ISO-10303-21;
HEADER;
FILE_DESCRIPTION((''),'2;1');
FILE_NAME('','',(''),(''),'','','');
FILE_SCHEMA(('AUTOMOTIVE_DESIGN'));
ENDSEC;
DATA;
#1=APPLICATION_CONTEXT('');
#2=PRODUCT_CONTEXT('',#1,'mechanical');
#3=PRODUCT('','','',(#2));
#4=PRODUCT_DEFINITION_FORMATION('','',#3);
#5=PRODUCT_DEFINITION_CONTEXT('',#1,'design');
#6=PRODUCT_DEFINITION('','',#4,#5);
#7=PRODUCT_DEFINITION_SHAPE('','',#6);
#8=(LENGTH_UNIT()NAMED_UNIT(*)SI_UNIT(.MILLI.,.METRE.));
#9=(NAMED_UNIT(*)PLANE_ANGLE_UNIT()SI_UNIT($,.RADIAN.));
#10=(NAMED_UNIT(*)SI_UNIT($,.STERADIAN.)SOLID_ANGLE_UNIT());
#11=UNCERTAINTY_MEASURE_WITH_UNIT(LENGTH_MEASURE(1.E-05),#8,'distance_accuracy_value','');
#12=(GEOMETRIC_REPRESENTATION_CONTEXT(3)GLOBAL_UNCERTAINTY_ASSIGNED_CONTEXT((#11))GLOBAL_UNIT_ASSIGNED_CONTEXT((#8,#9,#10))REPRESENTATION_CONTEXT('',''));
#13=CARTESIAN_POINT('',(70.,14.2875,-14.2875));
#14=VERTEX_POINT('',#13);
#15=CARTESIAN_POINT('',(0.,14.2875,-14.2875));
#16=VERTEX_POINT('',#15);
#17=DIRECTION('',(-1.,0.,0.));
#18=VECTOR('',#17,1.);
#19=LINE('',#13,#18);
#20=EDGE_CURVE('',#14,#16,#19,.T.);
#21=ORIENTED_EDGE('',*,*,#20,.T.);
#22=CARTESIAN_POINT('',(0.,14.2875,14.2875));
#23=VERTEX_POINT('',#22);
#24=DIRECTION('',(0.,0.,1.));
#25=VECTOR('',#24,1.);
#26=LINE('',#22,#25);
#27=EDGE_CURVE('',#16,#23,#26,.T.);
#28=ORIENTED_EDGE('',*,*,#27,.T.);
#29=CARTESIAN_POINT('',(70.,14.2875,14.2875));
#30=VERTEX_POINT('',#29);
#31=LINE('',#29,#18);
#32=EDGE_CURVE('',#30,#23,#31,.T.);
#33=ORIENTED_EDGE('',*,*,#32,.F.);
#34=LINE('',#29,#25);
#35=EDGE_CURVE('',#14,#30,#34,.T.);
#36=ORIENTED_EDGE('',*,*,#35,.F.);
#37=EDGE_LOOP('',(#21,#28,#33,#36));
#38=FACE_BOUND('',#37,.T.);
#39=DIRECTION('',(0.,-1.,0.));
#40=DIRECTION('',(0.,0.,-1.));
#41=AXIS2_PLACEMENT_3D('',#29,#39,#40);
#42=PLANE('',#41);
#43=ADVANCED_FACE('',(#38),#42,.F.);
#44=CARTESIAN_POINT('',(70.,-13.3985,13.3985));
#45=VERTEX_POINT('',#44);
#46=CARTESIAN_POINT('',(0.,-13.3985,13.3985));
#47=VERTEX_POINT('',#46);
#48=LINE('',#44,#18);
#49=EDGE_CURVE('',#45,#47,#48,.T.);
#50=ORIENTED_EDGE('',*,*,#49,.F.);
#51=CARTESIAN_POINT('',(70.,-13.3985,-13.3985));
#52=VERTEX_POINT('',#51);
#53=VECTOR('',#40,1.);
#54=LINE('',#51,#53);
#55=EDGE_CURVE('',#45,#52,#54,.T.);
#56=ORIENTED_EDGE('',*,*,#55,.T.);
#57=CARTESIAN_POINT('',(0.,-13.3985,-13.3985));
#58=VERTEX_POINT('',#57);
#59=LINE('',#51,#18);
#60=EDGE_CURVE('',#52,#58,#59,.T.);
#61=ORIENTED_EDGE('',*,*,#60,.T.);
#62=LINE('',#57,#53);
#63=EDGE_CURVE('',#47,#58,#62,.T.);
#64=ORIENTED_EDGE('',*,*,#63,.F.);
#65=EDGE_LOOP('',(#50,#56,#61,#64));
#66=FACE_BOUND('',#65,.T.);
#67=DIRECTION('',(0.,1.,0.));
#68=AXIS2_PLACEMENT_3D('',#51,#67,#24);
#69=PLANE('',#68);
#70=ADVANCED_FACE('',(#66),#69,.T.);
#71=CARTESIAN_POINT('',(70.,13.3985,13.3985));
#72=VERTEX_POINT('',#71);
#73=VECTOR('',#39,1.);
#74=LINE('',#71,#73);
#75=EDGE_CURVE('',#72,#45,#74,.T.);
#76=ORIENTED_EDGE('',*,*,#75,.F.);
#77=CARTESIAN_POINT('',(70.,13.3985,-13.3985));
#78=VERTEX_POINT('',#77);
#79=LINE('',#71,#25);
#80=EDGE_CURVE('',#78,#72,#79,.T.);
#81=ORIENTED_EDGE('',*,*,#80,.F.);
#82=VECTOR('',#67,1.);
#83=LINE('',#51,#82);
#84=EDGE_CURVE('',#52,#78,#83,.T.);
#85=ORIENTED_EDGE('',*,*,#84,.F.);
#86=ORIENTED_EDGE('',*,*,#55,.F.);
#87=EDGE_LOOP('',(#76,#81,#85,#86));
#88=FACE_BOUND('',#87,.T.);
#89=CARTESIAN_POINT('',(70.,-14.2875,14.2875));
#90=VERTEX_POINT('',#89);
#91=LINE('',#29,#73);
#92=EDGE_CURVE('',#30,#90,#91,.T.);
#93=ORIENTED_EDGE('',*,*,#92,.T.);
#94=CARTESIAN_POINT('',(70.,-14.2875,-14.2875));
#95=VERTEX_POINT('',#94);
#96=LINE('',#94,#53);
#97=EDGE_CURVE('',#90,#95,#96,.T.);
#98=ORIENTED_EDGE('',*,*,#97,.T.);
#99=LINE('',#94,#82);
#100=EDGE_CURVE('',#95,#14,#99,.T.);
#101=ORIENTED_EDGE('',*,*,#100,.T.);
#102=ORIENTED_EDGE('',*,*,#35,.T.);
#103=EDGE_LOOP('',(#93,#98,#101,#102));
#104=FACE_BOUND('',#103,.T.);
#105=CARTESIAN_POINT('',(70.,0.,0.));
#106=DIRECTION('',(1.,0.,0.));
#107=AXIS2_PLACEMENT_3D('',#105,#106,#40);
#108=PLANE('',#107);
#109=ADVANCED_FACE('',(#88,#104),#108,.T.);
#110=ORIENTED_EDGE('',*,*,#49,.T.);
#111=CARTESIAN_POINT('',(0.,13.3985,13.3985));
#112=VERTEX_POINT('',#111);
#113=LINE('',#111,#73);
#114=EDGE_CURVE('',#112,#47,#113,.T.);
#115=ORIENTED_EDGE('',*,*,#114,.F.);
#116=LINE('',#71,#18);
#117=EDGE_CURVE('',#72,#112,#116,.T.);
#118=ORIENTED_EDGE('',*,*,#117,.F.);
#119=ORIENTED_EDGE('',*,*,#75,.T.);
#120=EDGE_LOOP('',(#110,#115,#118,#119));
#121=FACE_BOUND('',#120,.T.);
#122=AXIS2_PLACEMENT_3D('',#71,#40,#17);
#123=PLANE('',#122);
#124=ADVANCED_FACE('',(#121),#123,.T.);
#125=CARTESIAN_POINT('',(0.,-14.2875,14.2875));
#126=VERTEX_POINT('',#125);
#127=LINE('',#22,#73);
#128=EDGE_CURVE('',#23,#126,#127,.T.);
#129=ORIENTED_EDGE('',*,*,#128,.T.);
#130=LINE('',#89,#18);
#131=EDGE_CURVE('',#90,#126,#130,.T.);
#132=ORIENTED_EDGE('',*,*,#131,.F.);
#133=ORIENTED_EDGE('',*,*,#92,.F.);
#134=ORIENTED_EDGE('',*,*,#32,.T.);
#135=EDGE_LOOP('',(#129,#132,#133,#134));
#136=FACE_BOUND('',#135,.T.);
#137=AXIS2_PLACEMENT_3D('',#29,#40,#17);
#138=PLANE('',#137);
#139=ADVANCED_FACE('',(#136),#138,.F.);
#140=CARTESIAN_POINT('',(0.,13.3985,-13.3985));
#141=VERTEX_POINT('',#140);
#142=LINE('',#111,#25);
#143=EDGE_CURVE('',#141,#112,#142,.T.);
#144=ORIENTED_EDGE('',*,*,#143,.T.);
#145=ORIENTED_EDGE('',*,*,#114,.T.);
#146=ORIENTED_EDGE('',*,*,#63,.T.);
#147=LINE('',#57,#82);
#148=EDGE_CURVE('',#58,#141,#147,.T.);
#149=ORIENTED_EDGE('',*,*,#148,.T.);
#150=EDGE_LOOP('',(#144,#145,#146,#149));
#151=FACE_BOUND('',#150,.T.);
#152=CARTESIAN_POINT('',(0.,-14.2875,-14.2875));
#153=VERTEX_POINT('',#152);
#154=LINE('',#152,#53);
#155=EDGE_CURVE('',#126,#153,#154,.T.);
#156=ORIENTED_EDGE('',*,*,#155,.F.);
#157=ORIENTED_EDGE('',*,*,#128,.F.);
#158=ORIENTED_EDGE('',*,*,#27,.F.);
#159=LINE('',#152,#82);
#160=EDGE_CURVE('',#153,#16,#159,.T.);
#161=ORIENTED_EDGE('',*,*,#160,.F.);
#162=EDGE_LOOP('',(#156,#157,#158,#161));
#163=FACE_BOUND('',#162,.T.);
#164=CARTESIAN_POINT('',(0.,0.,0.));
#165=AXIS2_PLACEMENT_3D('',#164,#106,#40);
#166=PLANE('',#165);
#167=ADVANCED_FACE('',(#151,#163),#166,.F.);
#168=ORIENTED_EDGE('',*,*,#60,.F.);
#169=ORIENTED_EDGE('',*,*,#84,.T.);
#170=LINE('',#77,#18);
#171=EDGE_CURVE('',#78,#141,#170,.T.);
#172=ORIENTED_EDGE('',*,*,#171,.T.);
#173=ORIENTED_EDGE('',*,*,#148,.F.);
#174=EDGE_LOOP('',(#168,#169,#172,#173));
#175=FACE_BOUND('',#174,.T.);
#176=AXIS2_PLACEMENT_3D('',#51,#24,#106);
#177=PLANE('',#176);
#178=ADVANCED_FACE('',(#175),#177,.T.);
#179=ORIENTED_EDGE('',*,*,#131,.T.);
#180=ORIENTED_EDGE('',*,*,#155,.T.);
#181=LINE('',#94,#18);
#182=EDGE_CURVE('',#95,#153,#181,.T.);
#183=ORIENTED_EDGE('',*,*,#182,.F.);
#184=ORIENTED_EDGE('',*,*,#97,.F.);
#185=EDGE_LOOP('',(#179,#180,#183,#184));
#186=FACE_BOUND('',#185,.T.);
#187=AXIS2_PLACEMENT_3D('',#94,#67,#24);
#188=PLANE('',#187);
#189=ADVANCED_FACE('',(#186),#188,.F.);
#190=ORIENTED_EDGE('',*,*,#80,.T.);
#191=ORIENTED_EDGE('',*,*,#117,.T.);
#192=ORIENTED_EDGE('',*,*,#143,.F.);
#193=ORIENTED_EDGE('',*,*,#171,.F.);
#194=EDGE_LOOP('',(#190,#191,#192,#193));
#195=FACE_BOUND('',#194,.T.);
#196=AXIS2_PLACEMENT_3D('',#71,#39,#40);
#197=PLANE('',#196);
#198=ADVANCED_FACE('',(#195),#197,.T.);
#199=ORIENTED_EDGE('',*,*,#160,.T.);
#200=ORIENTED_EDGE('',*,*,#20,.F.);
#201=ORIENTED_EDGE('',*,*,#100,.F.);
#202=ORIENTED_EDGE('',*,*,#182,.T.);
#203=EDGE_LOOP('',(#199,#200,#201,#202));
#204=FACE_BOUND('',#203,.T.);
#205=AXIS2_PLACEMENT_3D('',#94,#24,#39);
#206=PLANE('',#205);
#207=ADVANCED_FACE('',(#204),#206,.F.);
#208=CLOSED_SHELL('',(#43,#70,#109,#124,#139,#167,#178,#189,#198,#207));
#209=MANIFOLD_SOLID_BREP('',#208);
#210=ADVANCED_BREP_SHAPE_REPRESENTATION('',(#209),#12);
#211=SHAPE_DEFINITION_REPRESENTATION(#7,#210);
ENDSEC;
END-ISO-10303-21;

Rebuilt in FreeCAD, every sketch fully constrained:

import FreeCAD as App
import Part
import Sketcher
Q = App.Units.Quantity

doc = App.newDocument("Part")
body = doc.addObject("PartDesign::Body", "Body")

# Sketch on YZ plane
sketch1 = body.newObject("Sketcher::SketchObject", "Sketch")
sketch1.AttachmentSupport = (doc.getObject("YZ_Plane"), [""])
sketch1.MapMode = "FlatFace"
sketch1.addGeometry(Part.LineSegment(App.Vector(-14, 14, 0), App.Vector(-14, -14, 0)), False)
sketch1.addGeometry(Part.LineSegment(App.Vector(-14, -14, 0), App.Vector(14, -14, 0)), False)
sketch1.addGeometry(Part.LineSegment(App.Vector(14, -14, 0), App.Vector(14, 14, 0)), False)
sketch1.addGeometry(Part.LineSegment(App.Vector(14, 14, 0), App.Vector(-14, 14, 0)), False)
sketch1.addGeometry(Part.LineSegment(App.Vector(13, -13, 0), App.Vector(-13, -13, 0)), False)
sketch1.addGeometry(Part.LineSegment(App.Vector(-13, -13, 0), App.Vector(-13, 13, 0)), False)
sketch1.addGeometry(Part.LineSegment(App.Vector(-13, 13, 0), App.Vector(13, 13, 0)), False)
sketch1.addGeometry(Part.LineSegment(App.Vector(13, 13, 0), App.Vector(13, -13, 0)), False)
sketch1.addConstraint(Sketcher.Constraint("Coincident", 0, 2, 1, 1))
sketch1.addConstraint(Sketcher.Constraint("Coincident", 1, 2, 2, 1))
sketch1.addConstraint(Sketcher.Constraint("Coincident", 2, 2, 3, 1))
sketch1.addConstraint(Sketcher.Constraint("Coincident", 3, 2, 0, 1))
sketch1.addConstraint(Sketcher.Constraint("Coincident", 4, 2, 5, 1))
sketch1.addConstraint(Sketcher.Constraint("Coincident", 5, 2, 6, 1))
sketch1.addConstraint(Sketcher.Constraint("Coincident", 6, 2, 7, 1))
sketch1.addConstraint(Sketcher.Constraint("Coincident", 7, 2, 4, 1))
sketch1.addConstraint(Sketcher.Constraint("Vertical", 0))
sketch1.addConstraint(Sketcher.Constraint("Horizontal", 1))
sketch1.addConstraint(Sketcher.Constraint("Vertical", 2))
sketch1.addConstraint(Sketcher.Constraint("Horizontal", 3))
sketch1.addConstraint(Sketcher.Constraint("Horizontal", 4))
sketch1.addConstraint(Sketcher.Constraint("Vertical", 5))
sketch1.addConstraint(Sketcher.Constraint("Horizontal", 6))
sketch1.addConstraint(Sketcher.Constraint("Vertical", 7))
sketch1.addConstraint(Sketcher.Constraint("Symmetric", 0, 2, 2, 2, -1, 1))
sketch1.addConstraint(Sketcher.Constraint("Symmetric", 4, 2, 6, 2, -1, 1))
sketch1.addConstraint(Sketcher.Constraint("Equal", 3, 0))
sketch1.addConstraint(Sketcher.Constraint("Equal", 6, 5))
sketch1.addConstraint(Sketcher.Constraint("DistanceX", 1, 1, 1, 2, Q("1.125 in")))
sketch1.addConstraint(Sketcher.Constraint("DistanceX", 4, 2, 4, 1, Q("1.055 in")))
pad1 = body.newObject("PartDesign::Pad", "Pad")
pad1.Profile = sketch1
pad1.Length = 70

doc.recompute()
